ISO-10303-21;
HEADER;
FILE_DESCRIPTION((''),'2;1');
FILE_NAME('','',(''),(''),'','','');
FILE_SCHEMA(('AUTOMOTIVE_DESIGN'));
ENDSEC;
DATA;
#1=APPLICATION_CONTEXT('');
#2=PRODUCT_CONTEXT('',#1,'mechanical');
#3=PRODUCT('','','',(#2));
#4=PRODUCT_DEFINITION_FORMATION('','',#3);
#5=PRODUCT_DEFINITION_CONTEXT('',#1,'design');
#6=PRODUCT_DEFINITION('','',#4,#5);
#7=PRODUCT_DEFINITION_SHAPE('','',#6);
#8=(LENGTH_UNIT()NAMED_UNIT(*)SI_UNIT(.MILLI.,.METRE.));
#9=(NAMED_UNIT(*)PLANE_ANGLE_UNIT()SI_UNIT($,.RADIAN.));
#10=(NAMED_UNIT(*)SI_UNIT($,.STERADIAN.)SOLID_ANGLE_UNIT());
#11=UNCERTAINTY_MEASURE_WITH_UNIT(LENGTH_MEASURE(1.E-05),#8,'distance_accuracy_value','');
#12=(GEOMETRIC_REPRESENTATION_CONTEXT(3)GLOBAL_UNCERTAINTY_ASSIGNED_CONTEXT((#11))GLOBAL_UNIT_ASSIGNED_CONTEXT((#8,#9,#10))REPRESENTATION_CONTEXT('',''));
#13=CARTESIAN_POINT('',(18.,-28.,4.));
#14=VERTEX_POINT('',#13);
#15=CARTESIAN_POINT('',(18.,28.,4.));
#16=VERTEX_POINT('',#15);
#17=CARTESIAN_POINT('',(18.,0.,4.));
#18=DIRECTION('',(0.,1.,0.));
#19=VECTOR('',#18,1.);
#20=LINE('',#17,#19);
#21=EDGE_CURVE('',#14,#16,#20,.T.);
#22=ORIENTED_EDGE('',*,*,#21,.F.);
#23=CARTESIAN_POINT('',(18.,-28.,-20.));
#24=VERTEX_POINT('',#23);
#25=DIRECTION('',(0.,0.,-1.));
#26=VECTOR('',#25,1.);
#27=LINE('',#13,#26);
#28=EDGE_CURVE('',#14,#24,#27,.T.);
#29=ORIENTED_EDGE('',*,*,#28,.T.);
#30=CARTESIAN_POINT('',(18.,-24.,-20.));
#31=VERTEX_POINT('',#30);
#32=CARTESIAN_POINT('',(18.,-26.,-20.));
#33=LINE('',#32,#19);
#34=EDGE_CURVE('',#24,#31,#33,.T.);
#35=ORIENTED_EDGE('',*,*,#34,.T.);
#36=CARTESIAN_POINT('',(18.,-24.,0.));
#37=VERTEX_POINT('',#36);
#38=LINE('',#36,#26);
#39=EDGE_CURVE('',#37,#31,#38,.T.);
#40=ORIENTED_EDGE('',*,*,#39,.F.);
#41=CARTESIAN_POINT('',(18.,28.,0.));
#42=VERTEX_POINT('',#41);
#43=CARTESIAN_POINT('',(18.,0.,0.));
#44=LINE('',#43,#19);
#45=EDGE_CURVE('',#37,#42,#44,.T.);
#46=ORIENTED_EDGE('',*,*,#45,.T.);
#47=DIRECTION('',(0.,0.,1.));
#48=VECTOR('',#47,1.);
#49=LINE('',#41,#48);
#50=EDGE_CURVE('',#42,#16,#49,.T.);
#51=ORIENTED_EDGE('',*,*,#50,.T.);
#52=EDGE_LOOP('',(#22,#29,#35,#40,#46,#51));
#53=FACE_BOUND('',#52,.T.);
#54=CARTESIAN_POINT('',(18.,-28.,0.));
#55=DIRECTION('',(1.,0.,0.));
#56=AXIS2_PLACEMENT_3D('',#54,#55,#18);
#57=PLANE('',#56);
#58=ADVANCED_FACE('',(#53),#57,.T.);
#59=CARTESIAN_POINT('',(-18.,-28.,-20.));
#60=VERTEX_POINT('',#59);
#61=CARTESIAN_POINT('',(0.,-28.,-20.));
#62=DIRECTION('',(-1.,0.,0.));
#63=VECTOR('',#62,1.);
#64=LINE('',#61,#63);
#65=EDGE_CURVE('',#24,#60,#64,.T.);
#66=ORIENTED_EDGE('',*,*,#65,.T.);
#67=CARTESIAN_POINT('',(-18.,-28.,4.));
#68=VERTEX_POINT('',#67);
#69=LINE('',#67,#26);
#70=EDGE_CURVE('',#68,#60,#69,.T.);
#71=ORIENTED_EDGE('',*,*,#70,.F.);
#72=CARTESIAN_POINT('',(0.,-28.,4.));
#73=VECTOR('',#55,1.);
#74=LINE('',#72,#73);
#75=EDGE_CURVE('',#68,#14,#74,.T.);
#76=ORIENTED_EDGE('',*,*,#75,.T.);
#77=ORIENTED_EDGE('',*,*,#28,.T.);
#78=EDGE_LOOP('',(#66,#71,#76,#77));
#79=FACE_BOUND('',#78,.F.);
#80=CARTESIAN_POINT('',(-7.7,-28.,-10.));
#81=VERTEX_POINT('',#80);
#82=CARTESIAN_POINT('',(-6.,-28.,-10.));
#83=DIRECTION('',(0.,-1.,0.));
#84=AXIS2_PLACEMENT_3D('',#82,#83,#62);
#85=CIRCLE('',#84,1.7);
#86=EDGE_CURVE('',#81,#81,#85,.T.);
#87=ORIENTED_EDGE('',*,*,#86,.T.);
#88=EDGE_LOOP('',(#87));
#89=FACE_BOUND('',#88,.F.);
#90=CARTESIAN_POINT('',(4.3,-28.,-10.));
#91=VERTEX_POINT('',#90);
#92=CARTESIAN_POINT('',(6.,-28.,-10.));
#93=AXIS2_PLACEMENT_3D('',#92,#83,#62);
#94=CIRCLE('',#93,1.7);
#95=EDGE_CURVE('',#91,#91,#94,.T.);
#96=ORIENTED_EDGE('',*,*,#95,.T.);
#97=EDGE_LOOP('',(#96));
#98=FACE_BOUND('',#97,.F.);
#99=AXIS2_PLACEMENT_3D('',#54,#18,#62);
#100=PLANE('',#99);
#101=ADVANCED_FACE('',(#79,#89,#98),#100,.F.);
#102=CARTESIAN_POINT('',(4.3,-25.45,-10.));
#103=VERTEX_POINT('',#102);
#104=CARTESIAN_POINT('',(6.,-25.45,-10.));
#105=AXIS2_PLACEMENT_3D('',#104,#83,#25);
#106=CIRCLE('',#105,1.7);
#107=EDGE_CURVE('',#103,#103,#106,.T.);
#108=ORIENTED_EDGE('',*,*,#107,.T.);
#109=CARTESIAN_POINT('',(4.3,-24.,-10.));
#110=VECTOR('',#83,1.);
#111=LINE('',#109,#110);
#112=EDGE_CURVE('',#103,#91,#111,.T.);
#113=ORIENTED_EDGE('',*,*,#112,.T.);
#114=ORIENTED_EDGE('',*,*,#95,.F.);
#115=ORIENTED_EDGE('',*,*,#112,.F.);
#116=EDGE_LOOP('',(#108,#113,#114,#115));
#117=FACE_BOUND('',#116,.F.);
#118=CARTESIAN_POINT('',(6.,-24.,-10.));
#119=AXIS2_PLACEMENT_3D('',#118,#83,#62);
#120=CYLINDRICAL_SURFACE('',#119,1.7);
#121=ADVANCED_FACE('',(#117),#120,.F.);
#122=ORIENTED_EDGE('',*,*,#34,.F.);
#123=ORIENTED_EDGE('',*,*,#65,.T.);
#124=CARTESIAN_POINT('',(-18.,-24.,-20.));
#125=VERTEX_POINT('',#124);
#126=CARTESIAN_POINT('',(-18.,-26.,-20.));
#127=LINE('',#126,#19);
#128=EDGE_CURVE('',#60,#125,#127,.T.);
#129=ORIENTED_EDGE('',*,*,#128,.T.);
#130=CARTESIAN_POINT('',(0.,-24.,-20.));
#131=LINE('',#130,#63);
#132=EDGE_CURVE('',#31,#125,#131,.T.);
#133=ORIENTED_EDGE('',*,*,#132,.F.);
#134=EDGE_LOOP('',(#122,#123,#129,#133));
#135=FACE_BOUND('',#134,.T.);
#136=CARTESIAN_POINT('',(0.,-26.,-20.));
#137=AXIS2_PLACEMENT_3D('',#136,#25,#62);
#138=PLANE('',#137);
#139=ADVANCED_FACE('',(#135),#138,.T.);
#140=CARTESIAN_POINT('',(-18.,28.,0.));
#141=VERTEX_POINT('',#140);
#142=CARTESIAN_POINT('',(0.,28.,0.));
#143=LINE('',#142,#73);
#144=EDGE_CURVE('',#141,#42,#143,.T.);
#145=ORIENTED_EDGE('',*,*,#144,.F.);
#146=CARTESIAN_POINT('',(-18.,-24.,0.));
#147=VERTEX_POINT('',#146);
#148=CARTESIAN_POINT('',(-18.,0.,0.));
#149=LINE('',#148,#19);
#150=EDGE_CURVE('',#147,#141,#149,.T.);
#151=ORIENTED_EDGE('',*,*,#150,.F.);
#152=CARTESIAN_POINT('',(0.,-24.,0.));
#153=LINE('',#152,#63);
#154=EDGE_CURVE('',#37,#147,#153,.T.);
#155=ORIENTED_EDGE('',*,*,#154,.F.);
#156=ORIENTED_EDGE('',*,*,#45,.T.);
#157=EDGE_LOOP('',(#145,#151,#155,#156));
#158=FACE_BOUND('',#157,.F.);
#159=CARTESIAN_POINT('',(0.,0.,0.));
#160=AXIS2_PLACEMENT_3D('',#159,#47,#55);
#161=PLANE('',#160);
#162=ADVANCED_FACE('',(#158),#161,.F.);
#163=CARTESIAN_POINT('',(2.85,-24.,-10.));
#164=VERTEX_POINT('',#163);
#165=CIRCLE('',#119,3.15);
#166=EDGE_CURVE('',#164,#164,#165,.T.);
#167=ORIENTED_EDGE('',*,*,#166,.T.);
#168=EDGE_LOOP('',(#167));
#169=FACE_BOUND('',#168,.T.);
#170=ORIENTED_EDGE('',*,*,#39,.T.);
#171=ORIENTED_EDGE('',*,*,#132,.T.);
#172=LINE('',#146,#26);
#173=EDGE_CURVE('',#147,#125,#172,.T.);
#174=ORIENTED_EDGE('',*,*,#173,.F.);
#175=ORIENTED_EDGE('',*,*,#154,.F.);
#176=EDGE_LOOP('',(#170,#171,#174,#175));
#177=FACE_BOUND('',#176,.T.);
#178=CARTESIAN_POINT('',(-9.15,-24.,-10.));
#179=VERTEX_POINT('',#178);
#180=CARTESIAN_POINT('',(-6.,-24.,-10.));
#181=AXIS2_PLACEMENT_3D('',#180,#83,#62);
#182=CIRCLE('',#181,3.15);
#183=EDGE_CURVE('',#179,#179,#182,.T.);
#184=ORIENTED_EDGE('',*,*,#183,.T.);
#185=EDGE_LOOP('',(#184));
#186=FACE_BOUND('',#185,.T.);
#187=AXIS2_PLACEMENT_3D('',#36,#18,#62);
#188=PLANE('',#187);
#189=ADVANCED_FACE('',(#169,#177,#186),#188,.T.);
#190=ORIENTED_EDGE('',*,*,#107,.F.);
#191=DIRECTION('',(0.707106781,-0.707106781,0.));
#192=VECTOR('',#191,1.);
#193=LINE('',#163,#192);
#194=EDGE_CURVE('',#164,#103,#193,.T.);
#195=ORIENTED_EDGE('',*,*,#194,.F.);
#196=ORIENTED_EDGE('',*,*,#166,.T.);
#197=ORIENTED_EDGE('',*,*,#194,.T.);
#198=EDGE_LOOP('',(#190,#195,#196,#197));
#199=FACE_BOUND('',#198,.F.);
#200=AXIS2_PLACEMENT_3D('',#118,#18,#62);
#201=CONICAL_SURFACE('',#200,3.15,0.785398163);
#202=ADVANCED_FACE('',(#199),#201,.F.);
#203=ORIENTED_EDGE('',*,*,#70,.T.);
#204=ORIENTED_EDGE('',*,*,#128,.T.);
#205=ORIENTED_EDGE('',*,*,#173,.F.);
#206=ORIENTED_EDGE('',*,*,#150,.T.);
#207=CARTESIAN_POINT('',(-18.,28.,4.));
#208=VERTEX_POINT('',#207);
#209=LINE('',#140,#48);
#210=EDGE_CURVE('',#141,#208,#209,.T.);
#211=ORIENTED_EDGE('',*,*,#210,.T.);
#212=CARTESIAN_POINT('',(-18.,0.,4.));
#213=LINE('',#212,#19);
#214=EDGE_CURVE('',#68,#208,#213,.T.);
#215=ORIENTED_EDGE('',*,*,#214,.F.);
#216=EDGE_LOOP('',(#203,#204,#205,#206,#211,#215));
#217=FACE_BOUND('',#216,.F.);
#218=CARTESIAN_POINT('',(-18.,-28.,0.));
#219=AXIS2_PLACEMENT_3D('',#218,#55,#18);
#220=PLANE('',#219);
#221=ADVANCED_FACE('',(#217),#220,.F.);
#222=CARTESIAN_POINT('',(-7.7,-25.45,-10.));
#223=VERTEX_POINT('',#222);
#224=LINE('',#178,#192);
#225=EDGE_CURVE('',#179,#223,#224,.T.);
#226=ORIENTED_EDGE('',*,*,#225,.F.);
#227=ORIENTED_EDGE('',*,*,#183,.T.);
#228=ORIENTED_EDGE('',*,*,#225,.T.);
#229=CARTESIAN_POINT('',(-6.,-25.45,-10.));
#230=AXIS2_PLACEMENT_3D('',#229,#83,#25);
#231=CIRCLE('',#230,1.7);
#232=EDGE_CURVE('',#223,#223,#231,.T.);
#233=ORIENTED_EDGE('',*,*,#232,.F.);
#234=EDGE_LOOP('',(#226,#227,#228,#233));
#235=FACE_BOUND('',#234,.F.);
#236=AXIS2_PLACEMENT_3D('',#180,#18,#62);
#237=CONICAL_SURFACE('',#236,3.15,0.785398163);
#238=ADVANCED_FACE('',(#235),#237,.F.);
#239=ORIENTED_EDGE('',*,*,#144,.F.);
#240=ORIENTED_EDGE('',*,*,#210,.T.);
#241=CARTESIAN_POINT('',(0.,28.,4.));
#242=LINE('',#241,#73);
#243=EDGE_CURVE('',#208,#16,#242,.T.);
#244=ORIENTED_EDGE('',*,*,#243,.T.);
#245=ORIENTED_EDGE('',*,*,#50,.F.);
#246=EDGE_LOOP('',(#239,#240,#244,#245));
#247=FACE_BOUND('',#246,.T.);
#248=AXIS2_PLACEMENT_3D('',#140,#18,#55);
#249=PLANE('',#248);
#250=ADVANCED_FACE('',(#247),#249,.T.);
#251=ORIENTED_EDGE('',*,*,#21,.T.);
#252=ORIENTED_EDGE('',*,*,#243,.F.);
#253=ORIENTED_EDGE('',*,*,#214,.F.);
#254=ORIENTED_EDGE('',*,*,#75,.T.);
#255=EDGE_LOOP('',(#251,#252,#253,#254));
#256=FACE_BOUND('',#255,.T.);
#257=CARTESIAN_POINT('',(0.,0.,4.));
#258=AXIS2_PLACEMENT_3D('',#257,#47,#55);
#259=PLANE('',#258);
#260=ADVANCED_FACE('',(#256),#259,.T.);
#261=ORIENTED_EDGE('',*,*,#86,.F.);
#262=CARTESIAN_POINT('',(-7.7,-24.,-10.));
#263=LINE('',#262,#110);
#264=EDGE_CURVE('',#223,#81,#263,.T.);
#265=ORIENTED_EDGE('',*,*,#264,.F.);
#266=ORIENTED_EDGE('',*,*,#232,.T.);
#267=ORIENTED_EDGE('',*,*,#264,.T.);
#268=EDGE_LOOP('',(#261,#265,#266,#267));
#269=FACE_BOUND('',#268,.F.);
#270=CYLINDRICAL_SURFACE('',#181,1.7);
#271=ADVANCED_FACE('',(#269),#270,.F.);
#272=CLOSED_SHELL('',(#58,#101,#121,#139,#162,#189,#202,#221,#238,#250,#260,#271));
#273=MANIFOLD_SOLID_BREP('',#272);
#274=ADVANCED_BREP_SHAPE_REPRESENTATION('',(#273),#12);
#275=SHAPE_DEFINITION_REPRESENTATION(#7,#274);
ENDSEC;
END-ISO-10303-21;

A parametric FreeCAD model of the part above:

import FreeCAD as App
import Part
import Sketcher

doc = App.newDocument("Part")
body = doc.addObject("PartDesign::Body", "Body")

sketch1 = body.newObject("Sketcher::SketchObject", "Sketch")
sketch1.AttachmentSupport = (doc.getObject("XY_Plane"), [""])
sketch1.MapMode = "FlatFace"
sketch1.addGeometry(Part.LineSegment(App.Vector(-18, 28, 0), App.Vector(-18, -28, 0)), False)
sketch1.addGeometry(Part.LineSegment(App.Vector(-18, -28, 0), App.Vector(18, -28, 0)), False)
sketch1.addGeometry(Part.LineSegment(App.Vector(18, -28, 0), App.Vector(18, 28, 0)), False)
sketch1.addGeometry(Part.LineSegment(App.Vector(18, 28, 0), App.Vector(-18, 28, 0)), False)
sketch1.addConstraint(Sketcher.Constraint("Coincident", 0, 2, 1, 1))
sketch1.addConstraint(Sketcher.Constraint("Coincident", 1, 2, 2, 1))
sketch1.addConstraint(Sketcher.Constraint("Coincident", 2, 2, 3, 1))
sketch1.addConstraint(Sketcher.Constraint("Coincident", 3, 2, 0, 1))
sketch1.addConstraint(Sketcher.Constraint("Vertical", 0))
sketch1.addConstraint(Sketcher.Constraint("Horizontal", 1))
sketch1.addConstraint(Sketcher.Constraint("Vertical", 2))
sketch1.addConstraint(Sketcher.Constraint("Horizontal", 3))
sketch1.addConstraint(Sketcher.Constraint("Symmetric", 0, 2, 2, 2, -1, 1))
sketch1.addConstraint(Sketcher.Constraint("DistanceX", 1, 1, 1, 2, 36.0))
sketch1.addConstraint(Sketcher.Constraint("DistanceY", 0, 2, 0, 1, 56.0))
pad1 = body.newObject("PartDesign::Pad", "Pad")
pad1.Profile = sketch1
pad1.Length = 4

sketch2 = body.newObject("Sketcher::SketchObject", "Sketch001")
sketch2.AttachmentSupport = (doc.getObject("XY_Plane"), [""])
sketch2.MapMode = "FlatFace"
sketch2.addGeometry(Part.LineSegment(App.Vector(18, -24, 0), App.Vector(18, -28, 0)), False)
sketch2.addGeometry(Part.LineSegment(App.Vector(18, -28, 0), App.Vector(-18, -28, 0)), False)
sketch2.addGeometry(Part.LineSegment(App.Vector(-18, -28, 0), App.Vector(-18, -24, 0)), False)
sketch2.addGeometry(Part.LineSegment(App.Vector(-18, -24, 0), App.Vector(18, -24, 0)), False)
sketch2.addConstraint(Sketcher.Constraint("Coincident", 0, 2, 1, 1))
sketch2.addConstraint(Sketcher.Constraint("Coincident", 1, 2, 2, 1))
sketch2.addConstraint(Sketcher.Constraint("Coincident", 2, 2, 3, 1))
sketch2.addConstraint(Sketcher.Constraint("Coincident", 3, 2, 0, 1))
sketch2.addConstraint(Sketcher.Constraint("Vertical", 0))
sketch2.addConstraint(Sketcher.Constraint("Horizontal", 1))
sketch2.addConstraint(Sketcher.Constraint("Vertical", 2))
sketch2.addConstraint(Sketcher.Constraint("Horizontal", 3))
sketch2.addConstraint(Sketcher.Constraint("DistanceX", 1, 2, 1, 1, 36.0))
sketch2.addConstraint(Sketcher.Constraint("DistanceY", 0, 2, 0, 1, 4.0))
sketch2.addConstraint(Sketcher.Constraint("DistanceX", -1, 1, 0, 2, 18.0))
sketch2.addConstraint(Sketcher.Constraint("DistanceY", 0, 2, -1, 1, 28.0))
pad2 = body.newObject("PartDesign::Pad", "Pad001")
pad2.Profile = sketch2
pad2.Length = 20
pad2.Reversed = True

sketch3 = body.newObject("Sketcher::SketchObject", "Sketch002")
sketch3.AttachmentSupport = (doc.getObject("XZ_Plane"), [""])
sketch3.MapMode = "FlatFace"
sketch3.AttachmentOffset = App.Placement(App.Vector(0, 0, 24), App.Rotation())
sketch3.addGeometry(Part.Circle(App.Vector(6, -10, 0), App.Vector(0, 0, 1), 1.7), False)
sketch3.addGeometry(Part.Circle(App.Vector(-6, -10, 0), App.Vector(0, 0, 1), 1.7), False)
sketch3.addConstraint(Sketcher.Constraint("Equal", 0, 1))
sketch3.addConstraint(Sketcher.Constraint("Symmetric", 0, 3, 1, 3, -2))
sketch3.addConstraint(Sketcher.Constraint("Diameter", 0, 3.4))
sketch3.addConstraint(Sketcher.Constraint("DistanceX", -1, 1, 0, 3, 6.0))
sketch3.addConstraint(Sketcher.Constraint("DistanceY", 0, 3, -1, 1, 10.0))
doc.recompute()
hole = body.newObject("PartDesign::Hole", "Hole")
hole.Profile = sketch3
hole.ThreadType = "None"
hole.Diameter = 3.4
hole.DepthType = "ThroughAll"
hole.HoleCutType = "Countersink"
hole.HoleCutDiameter = 6.3
hole.HoleCutCountersinkAngle = 90
hole.Reversed = True

doc.recompute()
